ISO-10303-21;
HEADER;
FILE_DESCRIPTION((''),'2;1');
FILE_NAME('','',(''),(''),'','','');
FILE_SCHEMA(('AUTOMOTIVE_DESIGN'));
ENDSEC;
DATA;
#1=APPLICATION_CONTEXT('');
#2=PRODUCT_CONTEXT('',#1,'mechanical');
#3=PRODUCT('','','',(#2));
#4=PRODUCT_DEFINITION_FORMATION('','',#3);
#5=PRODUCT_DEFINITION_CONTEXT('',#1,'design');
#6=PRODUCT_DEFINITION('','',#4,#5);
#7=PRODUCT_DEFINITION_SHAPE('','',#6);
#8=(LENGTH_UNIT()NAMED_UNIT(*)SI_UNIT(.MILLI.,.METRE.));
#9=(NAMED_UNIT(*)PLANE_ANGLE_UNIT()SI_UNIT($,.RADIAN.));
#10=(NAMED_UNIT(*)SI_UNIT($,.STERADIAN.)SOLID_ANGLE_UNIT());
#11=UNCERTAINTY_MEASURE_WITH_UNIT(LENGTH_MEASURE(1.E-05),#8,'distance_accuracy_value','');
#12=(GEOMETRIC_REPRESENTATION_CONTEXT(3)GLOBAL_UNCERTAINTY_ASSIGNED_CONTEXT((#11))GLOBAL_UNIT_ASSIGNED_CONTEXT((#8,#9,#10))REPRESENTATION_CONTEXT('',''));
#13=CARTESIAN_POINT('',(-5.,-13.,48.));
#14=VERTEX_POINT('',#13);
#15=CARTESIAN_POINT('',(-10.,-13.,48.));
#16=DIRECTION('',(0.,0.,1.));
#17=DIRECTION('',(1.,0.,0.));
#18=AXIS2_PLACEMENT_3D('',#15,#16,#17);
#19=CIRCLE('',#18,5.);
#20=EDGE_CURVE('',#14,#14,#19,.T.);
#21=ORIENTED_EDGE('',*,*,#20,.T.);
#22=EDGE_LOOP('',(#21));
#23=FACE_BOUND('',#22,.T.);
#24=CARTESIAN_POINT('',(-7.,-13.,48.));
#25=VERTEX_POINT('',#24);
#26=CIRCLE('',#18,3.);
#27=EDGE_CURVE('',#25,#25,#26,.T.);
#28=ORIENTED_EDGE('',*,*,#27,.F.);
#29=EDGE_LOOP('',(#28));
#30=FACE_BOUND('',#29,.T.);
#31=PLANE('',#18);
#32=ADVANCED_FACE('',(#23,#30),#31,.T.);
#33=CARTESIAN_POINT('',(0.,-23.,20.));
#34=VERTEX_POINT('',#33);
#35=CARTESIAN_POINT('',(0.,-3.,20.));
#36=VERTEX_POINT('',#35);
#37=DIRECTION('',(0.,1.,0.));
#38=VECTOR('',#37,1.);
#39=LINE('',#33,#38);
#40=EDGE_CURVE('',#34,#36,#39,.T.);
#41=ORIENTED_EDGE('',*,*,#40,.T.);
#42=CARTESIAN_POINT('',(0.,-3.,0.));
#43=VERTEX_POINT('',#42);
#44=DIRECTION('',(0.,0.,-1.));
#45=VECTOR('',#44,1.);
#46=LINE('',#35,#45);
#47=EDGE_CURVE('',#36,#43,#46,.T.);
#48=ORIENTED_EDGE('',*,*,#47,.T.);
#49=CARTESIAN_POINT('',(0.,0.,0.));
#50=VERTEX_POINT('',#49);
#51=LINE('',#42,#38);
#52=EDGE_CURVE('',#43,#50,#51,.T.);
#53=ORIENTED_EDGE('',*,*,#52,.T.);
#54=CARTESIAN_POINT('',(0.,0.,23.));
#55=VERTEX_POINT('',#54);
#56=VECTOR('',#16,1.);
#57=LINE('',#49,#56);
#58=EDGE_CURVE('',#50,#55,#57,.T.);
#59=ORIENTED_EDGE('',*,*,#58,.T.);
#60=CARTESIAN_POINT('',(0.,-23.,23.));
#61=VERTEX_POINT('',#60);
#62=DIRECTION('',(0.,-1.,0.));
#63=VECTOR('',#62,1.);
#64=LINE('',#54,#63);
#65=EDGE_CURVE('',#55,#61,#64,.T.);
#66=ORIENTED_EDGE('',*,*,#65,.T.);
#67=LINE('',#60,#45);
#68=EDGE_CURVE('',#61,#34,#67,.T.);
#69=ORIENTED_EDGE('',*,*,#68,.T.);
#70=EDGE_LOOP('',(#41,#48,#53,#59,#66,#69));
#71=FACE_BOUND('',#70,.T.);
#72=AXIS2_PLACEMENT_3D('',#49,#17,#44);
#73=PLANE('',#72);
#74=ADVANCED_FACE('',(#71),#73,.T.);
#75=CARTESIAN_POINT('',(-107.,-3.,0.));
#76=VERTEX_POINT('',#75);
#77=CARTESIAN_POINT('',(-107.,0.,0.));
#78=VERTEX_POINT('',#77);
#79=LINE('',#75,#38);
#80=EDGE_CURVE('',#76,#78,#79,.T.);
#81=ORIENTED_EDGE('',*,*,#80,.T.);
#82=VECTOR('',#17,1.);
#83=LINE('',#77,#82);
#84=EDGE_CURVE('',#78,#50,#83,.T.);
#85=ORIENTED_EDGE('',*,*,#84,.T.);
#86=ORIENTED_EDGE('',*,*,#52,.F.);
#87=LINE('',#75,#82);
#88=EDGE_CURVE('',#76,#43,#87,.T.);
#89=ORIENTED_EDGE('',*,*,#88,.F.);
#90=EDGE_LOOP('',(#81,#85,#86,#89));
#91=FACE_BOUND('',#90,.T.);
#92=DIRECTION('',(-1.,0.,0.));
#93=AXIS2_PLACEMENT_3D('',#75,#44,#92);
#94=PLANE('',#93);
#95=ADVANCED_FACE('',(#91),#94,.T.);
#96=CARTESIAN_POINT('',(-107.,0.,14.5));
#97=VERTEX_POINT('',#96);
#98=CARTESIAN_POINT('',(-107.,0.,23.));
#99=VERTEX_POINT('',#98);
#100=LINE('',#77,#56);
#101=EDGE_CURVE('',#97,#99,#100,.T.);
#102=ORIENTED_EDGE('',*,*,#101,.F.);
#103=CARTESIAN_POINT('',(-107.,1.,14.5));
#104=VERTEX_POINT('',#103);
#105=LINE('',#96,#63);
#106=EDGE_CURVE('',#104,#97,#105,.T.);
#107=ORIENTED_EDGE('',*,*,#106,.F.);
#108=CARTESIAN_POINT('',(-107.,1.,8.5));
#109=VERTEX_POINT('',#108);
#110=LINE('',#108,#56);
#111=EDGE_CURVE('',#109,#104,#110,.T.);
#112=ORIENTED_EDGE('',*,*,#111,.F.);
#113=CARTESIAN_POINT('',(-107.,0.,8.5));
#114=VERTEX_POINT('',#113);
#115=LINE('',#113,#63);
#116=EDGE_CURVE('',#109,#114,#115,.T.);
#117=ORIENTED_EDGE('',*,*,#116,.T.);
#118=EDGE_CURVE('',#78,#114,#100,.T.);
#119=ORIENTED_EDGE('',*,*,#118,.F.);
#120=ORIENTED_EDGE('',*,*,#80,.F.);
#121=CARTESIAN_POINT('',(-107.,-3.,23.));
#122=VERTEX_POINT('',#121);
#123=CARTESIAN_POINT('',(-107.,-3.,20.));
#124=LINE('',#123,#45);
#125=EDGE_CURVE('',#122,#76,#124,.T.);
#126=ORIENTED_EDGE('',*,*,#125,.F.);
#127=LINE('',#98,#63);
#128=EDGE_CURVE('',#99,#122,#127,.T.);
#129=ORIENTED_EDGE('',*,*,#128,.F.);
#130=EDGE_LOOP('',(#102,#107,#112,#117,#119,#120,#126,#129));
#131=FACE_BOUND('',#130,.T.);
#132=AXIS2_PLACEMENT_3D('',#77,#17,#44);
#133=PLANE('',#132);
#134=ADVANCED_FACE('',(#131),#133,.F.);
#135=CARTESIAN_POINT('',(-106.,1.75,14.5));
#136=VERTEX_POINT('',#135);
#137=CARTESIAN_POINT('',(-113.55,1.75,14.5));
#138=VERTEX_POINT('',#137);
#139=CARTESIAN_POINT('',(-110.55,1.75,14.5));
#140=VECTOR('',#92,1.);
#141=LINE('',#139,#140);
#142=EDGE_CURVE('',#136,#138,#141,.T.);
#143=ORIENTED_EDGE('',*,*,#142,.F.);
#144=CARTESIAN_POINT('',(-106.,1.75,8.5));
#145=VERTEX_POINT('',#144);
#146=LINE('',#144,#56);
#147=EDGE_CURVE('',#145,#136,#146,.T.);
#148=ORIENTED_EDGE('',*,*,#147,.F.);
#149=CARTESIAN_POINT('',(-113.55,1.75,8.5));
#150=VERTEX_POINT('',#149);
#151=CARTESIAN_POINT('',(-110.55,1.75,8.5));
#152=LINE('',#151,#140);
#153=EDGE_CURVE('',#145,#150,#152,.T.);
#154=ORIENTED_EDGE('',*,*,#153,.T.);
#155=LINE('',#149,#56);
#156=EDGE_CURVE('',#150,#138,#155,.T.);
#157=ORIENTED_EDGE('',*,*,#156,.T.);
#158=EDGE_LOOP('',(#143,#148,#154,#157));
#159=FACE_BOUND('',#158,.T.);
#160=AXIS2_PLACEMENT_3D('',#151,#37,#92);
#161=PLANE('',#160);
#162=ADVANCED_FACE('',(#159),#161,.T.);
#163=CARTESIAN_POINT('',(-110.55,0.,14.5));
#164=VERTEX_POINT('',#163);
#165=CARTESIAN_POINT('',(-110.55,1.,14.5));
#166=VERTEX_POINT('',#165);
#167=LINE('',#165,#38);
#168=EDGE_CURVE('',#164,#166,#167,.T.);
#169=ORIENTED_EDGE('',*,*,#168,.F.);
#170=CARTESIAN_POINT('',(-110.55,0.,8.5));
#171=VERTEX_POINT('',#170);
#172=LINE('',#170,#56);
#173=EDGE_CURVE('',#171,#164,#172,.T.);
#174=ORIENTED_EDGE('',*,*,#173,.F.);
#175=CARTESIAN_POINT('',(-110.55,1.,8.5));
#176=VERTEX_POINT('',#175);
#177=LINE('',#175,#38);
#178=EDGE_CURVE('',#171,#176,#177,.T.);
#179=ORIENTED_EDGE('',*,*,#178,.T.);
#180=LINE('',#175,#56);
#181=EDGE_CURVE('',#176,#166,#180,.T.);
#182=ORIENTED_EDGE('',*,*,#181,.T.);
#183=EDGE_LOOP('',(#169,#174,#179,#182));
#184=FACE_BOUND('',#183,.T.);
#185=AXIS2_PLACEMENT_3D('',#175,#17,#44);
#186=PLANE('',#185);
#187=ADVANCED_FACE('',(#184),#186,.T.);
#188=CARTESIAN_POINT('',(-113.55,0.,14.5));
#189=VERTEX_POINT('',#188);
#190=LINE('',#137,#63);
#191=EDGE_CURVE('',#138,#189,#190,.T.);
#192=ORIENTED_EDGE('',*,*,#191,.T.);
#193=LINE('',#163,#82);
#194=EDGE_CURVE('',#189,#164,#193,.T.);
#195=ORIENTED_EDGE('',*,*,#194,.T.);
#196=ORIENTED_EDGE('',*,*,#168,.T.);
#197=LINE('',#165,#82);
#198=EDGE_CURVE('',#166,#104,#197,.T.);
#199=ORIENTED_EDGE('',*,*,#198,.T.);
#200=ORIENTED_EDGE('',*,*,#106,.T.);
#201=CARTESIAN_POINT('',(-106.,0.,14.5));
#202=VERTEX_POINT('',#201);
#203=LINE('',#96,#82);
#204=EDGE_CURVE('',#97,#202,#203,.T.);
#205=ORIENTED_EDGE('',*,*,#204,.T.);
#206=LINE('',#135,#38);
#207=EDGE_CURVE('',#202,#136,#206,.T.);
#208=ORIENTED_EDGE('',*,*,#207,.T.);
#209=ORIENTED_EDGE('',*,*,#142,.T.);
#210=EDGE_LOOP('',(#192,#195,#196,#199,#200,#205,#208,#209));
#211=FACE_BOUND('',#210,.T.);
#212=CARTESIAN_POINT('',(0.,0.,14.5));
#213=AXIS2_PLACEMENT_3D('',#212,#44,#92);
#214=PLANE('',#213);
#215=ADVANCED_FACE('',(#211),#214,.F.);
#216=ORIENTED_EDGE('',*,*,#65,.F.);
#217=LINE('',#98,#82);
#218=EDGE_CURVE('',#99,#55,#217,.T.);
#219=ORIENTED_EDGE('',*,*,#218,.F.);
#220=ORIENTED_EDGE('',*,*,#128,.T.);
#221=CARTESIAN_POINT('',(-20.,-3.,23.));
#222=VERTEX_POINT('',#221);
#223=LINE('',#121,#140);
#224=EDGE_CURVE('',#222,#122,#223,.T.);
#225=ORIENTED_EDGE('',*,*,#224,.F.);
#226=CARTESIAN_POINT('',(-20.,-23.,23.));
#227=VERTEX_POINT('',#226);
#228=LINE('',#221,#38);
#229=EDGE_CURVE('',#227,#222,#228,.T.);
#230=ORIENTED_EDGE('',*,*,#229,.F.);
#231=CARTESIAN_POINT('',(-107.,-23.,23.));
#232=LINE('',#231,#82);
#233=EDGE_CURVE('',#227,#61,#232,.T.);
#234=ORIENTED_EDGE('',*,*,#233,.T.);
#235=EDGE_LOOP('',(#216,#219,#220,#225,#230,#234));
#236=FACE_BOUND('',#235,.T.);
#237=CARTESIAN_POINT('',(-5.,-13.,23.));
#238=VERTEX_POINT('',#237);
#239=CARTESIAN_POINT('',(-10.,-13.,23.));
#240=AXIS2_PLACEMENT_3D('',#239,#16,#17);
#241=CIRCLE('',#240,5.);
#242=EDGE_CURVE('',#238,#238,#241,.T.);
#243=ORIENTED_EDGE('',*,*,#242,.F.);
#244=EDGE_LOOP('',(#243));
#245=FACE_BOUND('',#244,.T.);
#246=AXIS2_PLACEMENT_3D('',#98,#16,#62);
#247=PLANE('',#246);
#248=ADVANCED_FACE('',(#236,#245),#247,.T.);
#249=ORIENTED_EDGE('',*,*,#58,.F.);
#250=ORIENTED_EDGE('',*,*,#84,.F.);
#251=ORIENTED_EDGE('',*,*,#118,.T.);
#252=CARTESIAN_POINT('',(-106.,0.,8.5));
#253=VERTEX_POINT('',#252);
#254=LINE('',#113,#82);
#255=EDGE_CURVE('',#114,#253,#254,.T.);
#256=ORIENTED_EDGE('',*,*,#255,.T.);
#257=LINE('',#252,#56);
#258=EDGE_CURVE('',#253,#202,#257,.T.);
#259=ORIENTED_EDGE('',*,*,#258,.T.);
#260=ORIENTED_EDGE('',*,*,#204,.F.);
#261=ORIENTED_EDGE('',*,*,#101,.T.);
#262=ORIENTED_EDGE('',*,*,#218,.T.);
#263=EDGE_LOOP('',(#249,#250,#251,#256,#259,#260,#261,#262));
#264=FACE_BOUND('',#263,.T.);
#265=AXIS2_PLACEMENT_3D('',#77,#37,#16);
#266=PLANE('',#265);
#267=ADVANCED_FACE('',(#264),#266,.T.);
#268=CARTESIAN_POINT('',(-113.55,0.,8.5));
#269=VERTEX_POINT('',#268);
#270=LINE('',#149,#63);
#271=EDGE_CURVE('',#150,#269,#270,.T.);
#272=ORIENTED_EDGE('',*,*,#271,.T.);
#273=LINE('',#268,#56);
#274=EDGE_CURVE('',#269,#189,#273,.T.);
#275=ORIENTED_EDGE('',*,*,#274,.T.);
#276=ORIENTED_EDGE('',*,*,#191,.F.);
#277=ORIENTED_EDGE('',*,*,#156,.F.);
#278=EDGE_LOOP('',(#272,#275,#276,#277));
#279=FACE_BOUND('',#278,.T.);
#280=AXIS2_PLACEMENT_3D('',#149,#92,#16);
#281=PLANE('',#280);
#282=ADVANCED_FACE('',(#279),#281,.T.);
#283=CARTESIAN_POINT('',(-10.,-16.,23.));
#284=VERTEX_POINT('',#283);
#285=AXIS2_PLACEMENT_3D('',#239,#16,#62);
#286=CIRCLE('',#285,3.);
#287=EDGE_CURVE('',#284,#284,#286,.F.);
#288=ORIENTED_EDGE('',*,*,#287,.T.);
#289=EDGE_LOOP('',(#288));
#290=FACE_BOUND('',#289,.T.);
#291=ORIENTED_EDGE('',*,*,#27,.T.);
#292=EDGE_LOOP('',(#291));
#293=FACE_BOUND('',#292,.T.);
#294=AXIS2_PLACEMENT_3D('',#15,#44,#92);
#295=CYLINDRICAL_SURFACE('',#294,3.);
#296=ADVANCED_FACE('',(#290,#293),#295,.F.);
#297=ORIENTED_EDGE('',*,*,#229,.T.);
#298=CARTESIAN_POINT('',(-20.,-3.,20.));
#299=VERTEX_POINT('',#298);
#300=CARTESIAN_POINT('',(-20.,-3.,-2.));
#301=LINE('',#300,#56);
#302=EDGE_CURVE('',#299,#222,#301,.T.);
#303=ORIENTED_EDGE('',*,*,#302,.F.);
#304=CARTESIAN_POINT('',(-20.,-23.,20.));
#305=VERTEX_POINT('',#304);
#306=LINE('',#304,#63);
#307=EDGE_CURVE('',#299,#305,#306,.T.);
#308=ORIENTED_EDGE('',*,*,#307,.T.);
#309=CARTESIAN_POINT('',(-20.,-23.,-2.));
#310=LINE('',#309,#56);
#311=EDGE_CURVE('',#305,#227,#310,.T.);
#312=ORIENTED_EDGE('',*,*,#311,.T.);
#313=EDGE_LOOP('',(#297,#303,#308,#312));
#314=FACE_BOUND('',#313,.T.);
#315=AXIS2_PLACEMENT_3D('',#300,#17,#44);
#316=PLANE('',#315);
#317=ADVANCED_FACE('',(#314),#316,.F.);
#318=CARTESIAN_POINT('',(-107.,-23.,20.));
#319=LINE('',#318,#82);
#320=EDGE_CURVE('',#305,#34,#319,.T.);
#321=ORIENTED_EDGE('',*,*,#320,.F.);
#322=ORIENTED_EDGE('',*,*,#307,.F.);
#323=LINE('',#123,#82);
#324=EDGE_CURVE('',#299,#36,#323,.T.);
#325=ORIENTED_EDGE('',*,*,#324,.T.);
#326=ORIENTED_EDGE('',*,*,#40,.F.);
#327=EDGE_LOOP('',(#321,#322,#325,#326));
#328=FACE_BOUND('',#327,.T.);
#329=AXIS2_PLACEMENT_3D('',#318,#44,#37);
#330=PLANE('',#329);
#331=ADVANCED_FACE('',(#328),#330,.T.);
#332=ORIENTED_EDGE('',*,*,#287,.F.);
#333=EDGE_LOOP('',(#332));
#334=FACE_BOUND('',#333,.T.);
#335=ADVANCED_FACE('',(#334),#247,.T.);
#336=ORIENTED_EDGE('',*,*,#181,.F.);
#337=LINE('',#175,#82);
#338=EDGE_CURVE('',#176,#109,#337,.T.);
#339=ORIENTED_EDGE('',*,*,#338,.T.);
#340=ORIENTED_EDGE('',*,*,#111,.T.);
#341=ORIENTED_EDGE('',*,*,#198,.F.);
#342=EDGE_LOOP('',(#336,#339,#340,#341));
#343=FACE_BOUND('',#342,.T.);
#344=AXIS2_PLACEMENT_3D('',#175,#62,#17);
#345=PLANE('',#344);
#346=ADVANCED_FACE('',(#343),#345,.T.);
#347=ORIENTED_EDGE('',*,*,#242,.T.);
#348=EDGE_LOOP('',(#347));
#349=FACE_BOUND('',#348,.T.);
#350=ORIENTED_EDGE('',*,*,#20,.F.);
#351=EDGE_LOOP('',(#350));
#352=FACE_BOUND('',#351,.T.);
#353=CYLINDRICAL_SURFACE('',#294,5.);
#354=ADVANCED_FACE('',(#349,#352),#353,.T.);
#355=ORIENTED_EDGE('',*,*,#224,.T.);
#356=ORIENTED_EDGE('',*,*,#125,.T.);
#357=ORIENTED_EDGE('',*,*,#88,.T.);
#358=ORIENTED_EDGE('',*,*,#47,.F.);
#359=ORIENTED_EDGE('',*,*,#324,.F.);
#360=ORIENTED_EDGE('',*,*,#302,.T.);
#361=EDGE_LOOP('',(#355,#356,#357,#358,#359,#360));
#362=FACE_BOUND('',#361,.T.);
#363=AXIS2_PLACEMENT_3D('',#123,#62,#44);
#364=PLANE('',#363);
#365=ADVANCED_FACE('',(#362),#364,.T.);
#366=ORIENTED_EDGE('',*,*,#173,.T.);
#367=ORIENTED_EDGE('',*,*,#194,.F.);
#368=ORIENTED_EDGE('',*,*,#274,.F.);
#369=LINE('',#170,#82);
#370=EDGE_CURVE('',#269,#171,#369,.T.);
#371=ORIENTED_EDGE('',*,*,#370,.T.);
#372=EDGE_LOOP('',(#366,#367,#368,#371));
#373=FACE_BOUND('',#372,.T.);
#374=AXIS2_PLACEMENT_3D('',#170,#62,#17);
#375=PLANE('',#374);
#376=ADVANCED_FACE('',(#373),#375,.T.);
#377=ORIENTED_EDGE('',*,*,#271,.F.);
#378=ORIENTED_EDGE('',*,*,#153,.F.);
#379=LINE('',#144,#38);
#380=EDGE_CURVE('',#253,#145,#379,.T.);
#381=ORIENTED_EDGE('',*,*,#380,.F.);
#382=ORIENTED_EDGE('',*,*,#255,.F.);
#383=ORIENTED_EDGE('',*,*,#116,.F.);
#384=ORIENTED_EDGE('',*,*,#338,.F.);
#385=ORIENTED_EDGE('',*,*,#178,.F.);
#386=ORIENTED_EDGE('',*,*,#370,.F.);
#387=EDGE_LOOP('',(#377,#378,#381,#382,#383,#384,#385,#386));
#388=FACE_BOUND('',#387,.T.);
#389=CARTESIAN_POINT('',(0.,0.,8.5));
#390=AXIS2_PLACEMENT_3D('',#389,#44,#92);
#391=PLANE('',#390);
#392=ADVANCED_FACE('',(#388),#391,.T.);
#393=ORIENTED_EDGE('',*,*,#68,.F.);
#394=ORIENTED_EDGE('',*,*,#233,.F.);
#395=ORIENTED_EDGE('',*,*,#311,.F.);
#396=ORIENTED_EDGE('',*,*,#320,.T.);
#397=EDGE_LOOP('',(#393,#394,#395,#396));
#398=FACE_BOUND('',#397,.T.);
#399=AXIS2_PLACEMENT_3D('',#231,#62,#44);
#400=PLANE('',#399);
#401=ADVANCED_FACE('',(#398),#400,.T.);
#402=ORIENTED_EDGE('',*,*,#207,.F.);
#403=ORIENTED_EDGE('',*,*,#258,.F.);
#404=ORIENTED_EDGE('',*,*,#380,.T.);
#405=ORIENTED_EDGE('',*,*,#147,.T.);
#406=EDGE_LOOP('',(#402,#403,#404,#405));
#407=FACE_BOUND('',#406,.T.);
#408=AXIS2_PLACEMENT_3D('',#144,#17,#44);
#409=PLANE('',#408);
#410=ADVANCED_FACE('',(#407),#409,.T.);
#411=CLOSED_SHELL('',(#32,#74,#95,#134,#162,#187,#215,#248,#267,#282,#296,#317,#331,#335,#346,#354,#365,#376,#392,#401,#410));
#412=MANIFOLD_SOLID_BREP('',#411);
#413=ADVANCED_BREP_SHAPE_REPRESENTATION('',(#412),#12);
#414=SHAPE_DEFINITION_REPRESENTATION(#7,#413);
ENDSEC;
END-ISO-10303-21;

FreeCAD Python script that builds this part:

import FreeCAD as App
import Part
import Sketcher
Q = App.Units.Quantity


def add_polygon(sketch, points):
    """Adds a closed chain of lines whose ends are joined by coincident constraints."""
    first, n = sketch.GeometryCount, len(points)
    for a, b in zip(points, points[1:] + points[:1]):
        sketch.addGeometry(Part.LineSegment(App.Vector(*a, 0), App.Vector(*b, 0)), False)
    for i in range(n):
        sketch.addConstraint(Sketcher.Constraint("Coincident", first + i, 2, first + (i + 1) % n, 1))

doc = App.newDocument("Part")
params = doc.addObject("Spreadsheet::Sheet", "Params")
for row, (alias, value) in enumerate([
    ("sketch1_width", "23 mm"),
    ("sketch1_width2", "20 mm"),
    ("pad1_length", "107 mm"),
    ("sketch2_width", "87 mm"),
    ("sketch2_height", "20 mm"),
    ("pocket1_length", "25 mm"),
    ("sketch3_diameter", "10 mm"),
    ("sketch3_diameter2", "6 mm"),
    ("pad2_length", "25 mm"),
    ("sketch4_width", "1 mm"),
    ("sketch4_width2", "3 mm"),
    ("sketch4_width3", "7.55 mm"),
    ("sketch4_height", "1.75 mm"),
    ("pad3_length", "3 mm"),
    ("pad3_length2", "3 mm"),
], start=1):
    params.set(f"A{row}", alias)
    params.set(f"B{row}", "=" + value)
    params.setAlias(f"B{row}", alias)

body = doc.addObject("PartDesign::Body", "Body")

# Sketch on YZ plane
sketch1 = doc.addObject("Sketcher::SketchObject", "Sketch")
body.addObject(sketch1)
sketch1.AttachmentSupport = (doc.YZ_Plane, [""])
sketch1.MapMode = "FlatFace"
add_polygon(sketch1, [(0, 0), (0, 23), (-23, 23), (-23, 20), (-3, 20), (-3, 0)])  # lines 0-5
sketch1.addConstraint([
    Sketcher.Constraint("Vertical", 0),
    Sketcher.Constraint("Horizontal", 1),
    Sketcher.Constraint("Vertical", 2),
    Sketcher.Constraint("Horizontal", 3),
    Sketcher.Constraint("Vertical", 4),
    Sketcher.Constraint("Horizontal", 5),
    Sketcher.Constraint("Coincident", 5, 2, -1, 1),
    Sketcher.Constraint("Equal", 1, 0),
    Sketcher.Constraint("Equal", 5, 2),
    Sketcher.Constraint("DistanceX", 1, 2, 1, 1, Q("23 mm")),
    Sketcher.Constraint("DistanceX", 3, 1, 3, 2, Q("20 mm")),
])
sketch1.setExpression("Constraints[15]", "Params.sketch1_width")
sketch1.setExpression("Constraints[16]", "Params.sketch1_width2")
pad1 = doc.addObject("PartDesign::Pad", "Pad")
body.addObject(pad1)
pad1.Profile = sketch1
pad1.setExpression("Length", "Params.pad1_length")
pad1.Reversed = True

# Sketch on XY plane
sketch2 = doc.addObject("Sketcher::SketchObject", "Sketch001")
body.addObject(sketch2)
sketch2.AttachmentSupport = (doc.XY_Plane, [""])
sketch2.MapMode = "FlatFace"
sketch2.AttachmentOffset = App.Placement(App.Vector(0, 0, 23), App.Rotation())
add_polygon(sketch2, [(-107, -3), (-107, -23), (-20, -23), (-20, -3)])  # lines 0-3
sketch2.addConstraint([
    Sketcher.Constraint("Vertical", 0),
    Sketcher.Constraint("Horizontal", 1),
    Sketcher.Constraint("Vertical", 2),
    Sketcher.Constraint("Horizontal", 3),
    Sketcher.Constraint("DistanceX", 1, 1, 1, 2, Q("87 mm")),
    Sketcher.Constraint("DistanceY", 0, 2, 0, 1, Q("20 mm")),
    Sketcher.Constraint("DistanceX", 0, 2, -1, 1, Q("107 mm")),
    Sketcher.Constraint("DistanceY", 0, 2, -1, 1, Q("23 mm")),
])
sketch2.setExpression("Constraints[8]", "Params.sketch2_width")
sketch2.setExpression("Constraints[9]", "Params.sketch2_height")
pocket1 = doc.addObject("PartDesign::Pocket", "Pocket")
body.addObject(pocket1)
pocket1.Profile = sketch2
pocket1.setExpression("Length", "Params.pocket1_length")

# Sketch on XY plane
sketch3 = doc.addObject("Sketcher::SketchObject", "Sketch002")
body.addObject(sketch3)
sketch3.AttachmentSupport = (doc.XY_Plane, [""])
sketch3.MapMode = "FlatFace"
sketch3.AttachmentOffset = App.Placement(App.Vector(0, 0, 23), App.Rotation())
sketch3.addGeometry([
    Part.Circle(App.Vector(-10, -13, 0), App.Vector(0, 0, 1), 5),
    Part.Circle(App.Vector(-10, -13, 0), App.Vector(0, 0, 1), 3),
], False)
sketch3.addConstraint([
    Sketcher.Constraint("Coincident", 1, 3, 0, 3),
    Sketcher.Constraint("Diameter", 0, Q("10 mm")),
    Sketcher.Constraint("Diameter", 1, Q("6 mm")),
    Sketcher.Constraint("DistanceX", 0, 3, -1, 1, Q("10 mm")),
    Sketcher.Constraint("DistanceY", 0, 3, -1, 1, Q("13 mm")),
])
sketch3.setExpression("Constraints[1]", "Params.sketch3_diameter")
sketch3.setExpression("Constraints[2]", "Params.sketch3_diameter2")
pad2 = doc.addObject("PartDesign::Pad", "Pad001")
body.addObject(pad2)
pad2.Profile = sketch3
pad2.setExpression("Length", "Params.pad2_length")

# Sketch on XY plane
sketch4 = doc.addObject("Sketcher::SketchObject", "Sketch003")
body.addObject(sketch4)
sketch4.AttachmentSupport = (doc.XY_Plane, [""])
sketch4.MapMode = "FlatFace"
sketch4.AttachmentOffset = App.Placement(App.Vector(0, 0, 11.5), App.Rotation())
add_polygon(sketch4, [(-107, 1), (-107, 0), (-106, 0), (-106, 1.8), (-113.5, 1.8), (-113.5, 0), (-110.5, 0), (-110.5, 1)])  # lines 0-7
sketch4.addConstraint([
    Sketcher.Constraint("Vertical", 0),
    Sketcher.Constraint("Horizontal", 1),
    Sketcher.Constraint("Vertical", 2),
    Sketcher.Constraint("Horizontal", 3),
    Sketcher.Constraint("Vertical", 4),
    Sketcher.Constraint("Horizontal", 5),
    Sketcher.Constraint("Vertical", 6),
    Sketcher.Constraint("Horizontal", 7),
    Sketcher.Constraint("PointOnObject", 0, 2, -1),
    Sketcher.Constraint("PointOnObject", 4, 2, -1),
    Sketcher.Constraint("Equal", 1, 0),
    Sketcher.Constraint("DistanceX", 1, 1, 1, 2, Q("1 mm")),
    Sketcher.Constraint("DistanceX", 5, 1, 5, 2, Q("3 mm")),
    Sketcher.Constraint("DistanceX", 0, 2, -1, 1, Q("107 mm")),
    Sketcher.Constraint("DistanceX", 3, 2, 3, 1, Q("7.55 mm")),
    Sketcher.Constraint("DistanceY", 2, 1, 2, 2, Q("1.75 mm")),
])
sketch4.setExpression("Constraints[19]", "Params.sketch4_width")
sketch4.setExpression("Constraints[20]", "Params.sketch4_width2")
sketch4.setExpression("Constraints[22]", "Params.sketch4_width3")
sketch4.setExpression("Constraints[23]", "Params.sketch4_height")
pad3 = doc.addObject("PartDesign::Pad", "Pad002")
body.addObject(pad3)
pad3.Profile = sketch4
pad3.Type = "TwoLengths"
pad3.setExpression("Length", "Params.pad3_length")
pad3.setExpression("Length2", "Params.pad3_length2")

doc.recompute()
